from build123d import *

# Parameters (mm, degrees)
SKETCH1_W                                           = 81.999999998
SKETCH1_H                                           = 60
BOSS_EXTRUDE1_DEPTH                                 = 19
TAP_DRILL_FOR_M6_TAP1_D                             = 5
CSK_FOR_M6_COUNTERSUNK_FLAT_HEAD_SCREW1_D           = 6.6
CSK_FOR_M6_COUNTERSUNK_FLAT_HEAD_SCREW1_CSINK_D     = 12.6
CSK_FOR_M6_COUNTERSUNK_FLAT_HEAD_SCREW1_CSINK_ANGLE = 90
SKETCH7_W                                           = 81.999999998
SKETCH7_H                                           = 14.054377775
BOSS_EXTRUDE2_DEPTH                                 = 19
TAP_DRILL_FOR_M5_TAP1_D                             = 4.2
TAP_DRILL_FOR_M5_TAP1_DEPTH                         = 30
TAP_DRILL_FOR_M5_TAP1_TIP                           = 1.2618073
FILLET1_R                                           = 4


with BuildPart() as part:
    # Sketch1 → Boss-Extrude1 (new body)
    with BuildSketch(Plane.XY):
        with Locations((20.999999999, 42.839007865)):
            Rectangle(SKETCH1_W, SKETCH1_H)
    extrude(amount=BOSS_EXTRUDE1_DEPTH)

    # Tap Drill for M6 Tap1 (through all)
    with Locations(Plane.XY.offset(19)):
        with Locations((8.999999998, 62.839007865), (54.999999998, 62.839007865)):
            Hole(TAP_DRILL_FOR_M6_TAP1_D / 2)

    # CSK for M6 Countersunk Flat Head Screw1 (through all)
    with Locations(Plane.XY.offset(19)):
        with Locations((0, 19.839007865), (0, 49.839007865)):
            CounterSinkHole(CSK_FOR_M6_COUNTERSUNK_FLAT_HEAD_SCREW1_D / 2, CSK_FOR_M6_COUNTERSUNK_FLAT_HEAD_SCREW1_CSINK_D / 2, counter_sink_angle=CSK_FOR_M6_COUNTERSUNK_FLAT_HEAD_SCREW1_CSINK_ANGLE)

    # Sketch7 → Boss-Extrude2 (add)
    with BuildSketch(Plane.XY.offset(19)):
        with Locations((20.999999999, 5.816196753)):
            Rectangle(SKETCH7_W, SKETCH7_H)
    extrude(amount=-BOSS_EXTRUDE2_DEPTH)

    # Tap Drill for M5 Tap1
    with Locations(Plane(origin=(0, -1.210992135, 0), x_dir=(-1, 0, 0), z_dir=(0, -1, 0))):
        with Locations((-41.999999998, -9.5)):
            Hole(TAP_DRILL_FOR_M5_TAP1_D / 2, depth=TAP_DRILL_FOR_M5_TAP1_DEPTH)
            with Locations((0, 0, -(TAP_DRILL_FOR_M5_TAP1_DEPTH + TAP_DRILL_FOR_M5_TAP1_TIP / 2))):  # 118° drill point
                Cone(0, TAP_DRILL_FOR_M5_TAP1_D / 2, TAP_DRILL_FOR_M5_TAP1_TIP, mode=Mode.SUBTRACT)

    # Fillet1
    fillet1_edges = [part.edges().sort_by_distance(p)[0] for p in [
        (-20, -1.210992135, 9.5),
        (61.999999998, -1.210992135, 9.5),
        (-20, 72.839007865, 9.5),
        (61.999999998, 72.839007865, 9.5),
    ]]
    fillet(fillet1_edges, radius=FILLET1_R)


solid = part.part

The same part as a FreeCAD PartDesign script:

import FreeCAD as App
import Part
import Sketcher
from FreeCAD import Vector


def edges_at(feature, points):
    """Names of the edges that pass closest to the given points."""
    edges = feature.Shape.Edges
    near = lambda p: min(range(len(edges)), key=lambda i: edges[i].distToShape(Part.Vertex(*p))[0])
    return sorted({f"Edge{near(p) + 1}" for p in points})


def add_polygon(sketch, points):
    """Adds a closed chain of lines whose ends are joined by coincident constraints."""
    first, n = sketch.GeometryCount, len(points)
    for a, b in zip(points, points[1:] + points[:1]):
        sketch.addGeometry(Part.LineSegment(App.Vector(*a, 0), App.Vector(*b, 0)), False)
    for i in range(n):
        sketch.addConstraint(Sketcher.Constraint("Coincident", first + i, 2, first + (i + 1) % n, 1))

doc = App.newDocument("Part")
body = doc.addObject("PartDesign::Body", "Body")

# Sketch on XY plane
sketch1 = body.newObject("Sketcher::SketchObject", "Sketch")
sketch1.AttachmentSupport = (doc.getObject("XY_Plane"), [""])
sketch1.MapMode = "FlatFace"
add_polygon(sketch1, [(-20, 73), (-20, 13), (62, 13), (62, 73)])  # lines 0-3
sketch1.addConstraint([
    Sketcher.Constraint("Vertical", 0),
    Sketcher.Constraint("Horizontal", 1),
    Sketcher.Constraint("Vertical", 2),
    Sketcher.Constraint("Horizontal", 3),
    Sketcher.Constraint("DistanceX", 1, 1, 1, 2, 82.0),
    Sketcher.Constraint("DistanceY", 0, 2, 0, 1, 60.0),
    Sketcher.Constraint("DistanceX", 0, 2, -1, 1, 20.0),
    Sketcher.Constraint("DistanceY", -1, 1, 0, 2, 12.839008),
])
pad1 = body.newObject("PartDesign::Pad", "Pad")
pad1.Profile = sketch1
pad1.Length = 19

# Sketch on XY plane
sketch2 = body.newObject("Sketcher::SketchObject", "Sketch001")
sketch2.AttachmentSupport = (doc.getObject("XY_Plane"), [""])
sketch2.MapMode = "FlatFace"
sketch2.AttachmentOffset = App.Placement(Vector(0, 0, 19), App.Rotation())
sketch2.addGeometry([
    Part.Circle(Vector(9, 62.8, 0), Vector(0, 0, 1), 2.5),
    Part.Circle(Vector(55, 62.8, 0), Vector(0, 0, 1), 2.5),
], False)
sketch2.addConstraint([
    Sketcher.Constraint("Equal", 0, 1),
    Sketcher.Constraint("Horizontal", 0, 3, 1, 3),
    Sketcher.Constraint("Diameter", 0, 5.0),
    Sketcher.Constraint("DistanceX", -1, 1, 0, 3, 9.0),
    Sketcher.Constraint("DistanceX", -1, 1, 1, 3, 55.0),
    Sketcher.Constraint("DistanceY", -1, 1, 0, 3, 62.839008),
])
doc.recompute()
hole = body.newObject("PartDesign::Hole", "Hole")
hole.Profile = sketch2
hole.ThreadType = "None"
hole.Diameter = 5
hole.DepthType = "ThroughAll"

# Sketch on XY plane
sketch3 = body.newObject("Sketcher::SketchObject", "Sketch002")
sketch3.AttachmentSupport = (doc.getObject("XY_Plane"), [""])
sketch3.MapMode = "FlatFace"
sketch3.AttachmentOffset = App.Placement(Vector(0, 0, 19), App.Rotation())
sketch3.addGeometry([
    Part.Circle(Vector(0, 19.8, 0), Vector(0, 0, 1), 3.3),
    Part.Circle(Vector(0, 49.8, 0), Vector(0, 0, 1), 3.3),
], False)
sketch3.addConstraint([
    Sketcher.Constraint("Equal", 0, 1),
    Sketcher.Constraint("PointOnObject", 0, 3, -2),
    Sketcher.Constraint("PointOnObject", 1, 3, -2),
    Sketcher.Constraint("Diameter", 0, 6.6),
    Sketcher.Constraint("DistanceY", 0, 3, 1, 3, 30.0),
    Sketcher.Constraint("DistanceY", -1, 1, 0, 3, 19.839008),
])
doc.recompute()
hole2 = body.newObject("PartDesign::Hole", "Hole001")
hole2.Profile = sketch3
hole2.ThreadType = "None"
hole2.Diameter = 6.6
hole2.DepthType = "ThroughAll"
hole2.HoleCutType = "Countersink"
hole2.HoleCutDiameter = 12.6
hole2.HoleCutCountersinkAngle = 90

# Sketch on XY plane
sketch4 = body.newObject("Sketcher::SketchObject", "Sketch003")
sketch4.AttachmentSupport = (doc.getObject("XY_Plane"), [""])
sketch4.MapMode = "FlatFace"
sketch4.AttachmentOffset = App.Placement(Vector(0, 0, 19), App.Rotation())
add_polygon(sketch4, [(-20, 13), (-20, -1), (62, -1), (62, 13)])  # lines 0-3
sketch4.addConstraint([
    Sketcher.Constraint("Vertical", 0),
    Sketcher.Constraint("Horizontal", 1),
    Sketcher.Constraint("Vertical", 2),
    Sketcher.Constraint("Horizontal", 3),
    Sketcher.Constraint("DistanceX", 1, 1, 1, 2, 82.0),
    Sketcher.Constraint("DistanceX", 0, 2, -1, 1, 20.0),
    Sketcher.Constraint("DistanceY", 0, 2, 0, 1, 14.054378),
    Sketcher.Constraint("DistanceY", 0, 2, -1, 1, 1.210992),
])
pad2 = body.newObject("PartDesign::Pad", "Pad001")
pad2.Profile = sketch4
pad2.Length = 19
pad2.Reversed = True

# Sketch on XZ plane
sketch5 = body.newObject("Sketcher::SketchObject", "Sketch004")
sketch5.AttachmentSupport = (doc.getObject("XZ_Plane"), [""])
sketch5.MapMode = "FlatFace"
sketch5.AttachmentOffset = App.Placement(Vector(0, 0, 1.210992), App.Rotation())
sketch5.addGeometry(Part.Circle(Vector(42, 9.5, 0), Vector(0, 0, 1), 2.1), False)
sketch5.addConstraint([
    Sketcher.Constraint("Diameter", 0, 4.2),
    Sketcher.Constraint("DistanceX", -1, 1, 0, 3, 42.0),
    Sketcher.Constraint("DistanceY", -1, 1, 0, 3, 9.5),
])
doc.recompute()
hole3 = body.newObject("PartDesign::Hole", "Hole002")
hole3.Profile = sketch5
hole3.ThreadType = "None"
hole3.Diameter = 4.2
hole3.DepthType = "Dimension"
hole3.Depth = 30
hole3.DrillPoint = "Angled"
hole3.DrillPointAngle = 118
doc.recompute()

fillet = body.newObject("PartDesign::Fillet", "Fillet")
fillet.Base = (hole3, edges_at(hole3, [
    (-20, -1.211, 9.5),
    (62, -1.211, 9.5),
    (-20, 72.839, 9.5),
    (62, 72.839, 9.5),
]))
fillet.Radius = 4

doc.recompute()
